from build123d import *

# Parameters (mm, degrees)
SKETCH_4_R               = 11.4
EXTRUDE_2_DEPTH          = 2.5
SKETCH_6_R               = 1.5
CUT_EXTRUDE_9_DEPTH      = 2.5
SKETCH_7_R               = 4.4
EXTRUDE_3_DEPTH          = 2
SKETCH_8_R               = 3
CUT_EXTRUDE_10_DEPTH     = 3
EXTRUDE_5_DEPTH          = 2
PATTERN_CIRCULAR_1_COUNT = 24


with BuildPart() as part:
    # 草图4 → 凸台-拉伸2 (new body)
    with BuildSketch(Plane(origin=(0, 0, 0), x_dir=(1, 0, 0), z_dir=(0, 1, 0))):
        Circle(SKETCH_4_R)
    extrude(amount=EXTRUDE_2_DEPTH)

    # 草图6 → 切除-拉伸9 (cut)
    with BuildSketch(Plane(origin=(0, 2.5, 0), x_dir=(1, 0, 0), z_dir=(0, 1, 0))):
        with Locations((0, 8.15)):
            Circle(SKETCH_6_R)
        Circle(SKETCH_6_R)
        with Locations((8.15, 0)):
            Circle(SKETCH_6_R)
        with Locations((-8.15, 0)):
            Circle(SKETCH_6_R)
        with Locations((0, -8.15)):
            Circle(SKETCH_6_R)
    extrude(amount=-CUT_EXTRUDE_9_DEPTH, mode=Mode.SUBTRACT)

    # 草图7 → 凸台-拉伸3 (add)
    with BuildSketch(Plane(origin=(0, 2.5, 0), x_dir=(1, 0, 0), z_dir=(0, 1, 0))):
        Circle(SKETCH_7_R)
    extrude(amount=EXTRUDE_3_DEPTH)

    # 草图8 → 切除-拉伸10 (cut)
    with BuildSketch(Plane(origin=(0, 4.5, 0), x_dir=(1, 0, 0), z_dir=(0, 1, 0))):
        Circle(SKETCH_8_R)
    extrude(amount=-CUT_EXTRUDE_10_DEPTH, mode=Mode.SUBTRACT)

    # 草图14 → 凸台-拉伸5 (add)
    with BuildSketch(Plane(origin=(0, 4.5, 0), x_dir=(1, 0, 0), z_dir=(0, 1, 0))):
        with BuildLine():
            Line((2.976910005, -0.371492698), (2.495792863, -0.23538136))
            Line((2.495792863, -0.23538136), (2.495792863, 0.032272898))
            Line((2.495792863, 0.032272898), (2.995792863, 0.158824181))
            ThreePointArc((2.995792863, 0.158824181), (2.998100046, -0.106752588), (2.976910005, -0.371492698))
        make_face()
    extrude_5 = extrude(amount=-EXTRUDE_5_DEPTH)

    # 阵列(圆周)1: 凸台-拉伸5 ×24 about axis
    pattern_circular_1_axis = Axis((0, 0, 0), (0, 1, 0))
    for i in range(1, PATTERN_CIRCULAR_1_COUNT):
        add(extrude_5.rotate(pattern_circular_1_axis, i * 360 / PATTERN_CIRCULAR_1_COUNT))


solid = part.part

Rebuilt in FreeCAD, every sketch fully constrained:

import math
import FreeCAD as App
import Part
import Sketcher

doc = App.newDocument("Part")
body = doc.addObject("PartDesign::Body", "Body")

sketch1 = doc.addObject("Sketcher::SketchObject", "Sketch")
body.addObject(sketch1)
sketch1.AttachmentSupport = (doc.XZ_Plane, [""])
sketch1.MapMode = "FlatFace"
sketch1.addGeometry(Part.Circle(App.Vector(0, 0, 0), App.Vector(0, 0, 1), 11), False)
sketch1.addConstraint(Sketcher.Constraint("Coincident", 0, 3, -1, 1))
sketch1.addConstraint(Sketcher.Constraint("Diameter", 0, 22.8))
pad1 = doc.addObject("PartDesign::Pad", "Pad")
body.addObject(pad1)
pad1.Profile = sketch1
pad1.Length = 2.5
pad1.Reversed = True

sketch2 = doc.addObject("Sketcher::SketchObject", "Sketch001")
body.addObject(sketch2)
sketch2.AttachmentSupport = (doc.XZ_Plane, [""])
sketch2.MapMode = "FlatFace"
sketch2.AttachmentOffset = App.Placement(App.Vector(0, 0, -2.5), App.Rotation())
sketch2.addGeometry(Part.Circle(App.Vector(0, -8.2, 0), App.Vector(0, 0, 1), 1.5), False)
sketch2.addGeometry(Part.Circle(App.Vector(0, 0, 0), App.Vector(0, 0, 1), 1.5), False)
sketch2.addGeometry(Part.Circle(App.Vector(8.2, 0, 0), App.Vector(0, 0, 1), 1.5), False)
sketch2.addGeometry(Part.Circle(App.Vector(-8.2, 0, 0), App.Vector(0, 0, 1), 1.5), False)
sketch2.addGeometry(Part.Circle(App.Vector(0, 8.2, 0), App.Vector(0, 0, 1), 1.5), False)
sketch2.addConstraint(Sketcher.Constraint("Coincident", 1, 3, -1, 1))
sketch2.addConstraint(Sketcher.Constraint("Equal", 0, 1))
sketch2.addConstraint(Sketcher.Constraint("Equal", 1, 2))
sketch2.addConstraint(Sketcher.Constraint("Equal", 2, 3))
sketch2.addConstraint(Sketcher.Constraint("Equal", 3, 4))
sketch2.addConstraint(Sketcher.Constraint("Symmetric", 2, 3, 3, 3, -1, 1))
sketch2.addConstraint(Sketcher.Constraint("Symmetric", 0, 3, 4, 3, -1, 1))
sketch2.addConstraint(Sketcher.Constraint("PointOnObject", 0, 3, -2))
sketch2.addConstraint(Sketcher.Constraint("PointOnObject", 2, 3, -1))
sketch2.addConstraint(Sketcher.Constraint("Diameter", 0, 3.0))
sketch2.addConstraint(Sketcher.Constraint("DistanceX", 3, 3, 2, 3, 16.3))
sketch2.addConstraint(Sketcher.Constraint("DistanceY", 0, 3, 4, 3, 16.3))
pocket1 = doc.addObject("PartDesign::Pocket", "Pocket")
body.addObject(pocket1)
pocket1.Profile = sketch2
pocket1.Length = 2.5
pocket1.Reversed = True

sketch3 = doc.addObject("Sketcher::SketchObject", "Sketch002")
body.addObject(sketch3)
sketch3.AttachmentSupport = (doc.XZ_Plane, [""])
sketch3.MapMode = "FlatFace"
sketch3.AttachmentOffset = App.Placement(App.Vector(0, 0, -2.5), App.Rotation())
sketch3.addGeometry(Part.Circle(App.Vector(0, 0, 0), App.Vector(0, 0, 1), 4.4), False)
sketch3.addConstraint(Sketcher.Constraint("Coincident", 0, 3, -1, 1))
sketch3.addConstraint(Sketcher.Constraint("Diameter", 0, 8.8))
pad2 = doc.addObject("PartDesign::Pad", "Pad001")
body.addObject(pad2)
pad2.Profile = sketch3
pad2.Length = 2
pad2.Reversed = True

sketch4 = doc.addObject("Sketcher::SketchObject", "Sketch003")
body.addObject(sketch4)
sketch4.AttachmentSupport = (doc.XZ_Plane, [""])
sketch4.MapMode = "FlatFace"
sketch4.AttachmentOffset = App.Placement(App.Vector(0, 0, -4.5), App.Rotation())
sketch4.addGeometry(Part.Circle(App.Vector(0, 0, 0), App.Vector(0, 0, 1), 3), False)
sketch4.addConstraint(Sketcher.Constraint("Coincident", 0, 3, -1, 1))
sketch4.addConstraint(Sketcher.Constraint("Diameter", 0, 6.0))
pocket2 = doc.addObject("PartDesign::Pocket", "Pocket001")
body.addObject(pocket2)
pocket2.Profile = sketch4
pocket2.Length = 3
pocket2.Reversed = True

sketch5 = doc.addObject("Sketcher::SketchObject", "Sketch004")
body.addObject(sketch5)
sketch5.AttachmentSupport = (doc.XZ_Plane, [""])
sketch5.MapMode = "FlatFace"
sketch5.AttachmentOffset = App.Placement(App.Vector(0, 0, -4.5), App.Rotation())
sketch5.addGeometry(Part.LineSegment(App.Vector(2.5, 0.24, 0), App.Vector(2.98, 0.37, 0)), False)
sketch5.addGeometry(Part.ArcOfCircle(Part.Circle(App.Vector(0, 0, 0), App.Vector(0, 0, 1), 3), math.radians(-3.03), math.radians(7.11)), False)
sketch5.addGeometry(Part.LineSegment(App.Vector(3, -0.16, 0), App.Vector(2.5, -0.03, 0)), False)
sketch5.addGeometry(Part.LineSegment(App.Vector(2.5, -0.03, 0), App.Vector(2.5, 0.24, 0)), False)
sketch5.addConstraint(Sketcher.Constraint("Coincident", 0, 2, 1, 2))
sketch5.addConstraint(Sketcher.Constraint("Coincident", 1, 1, 2, 1))
sketch5.addConstraint(Sketcher.Constraint("Coincident", 2, 2, 3, 1))
sketch5.addConstraint(Sketcher.Constraint("Coincident", 3, 2, 0, 1))
sketch5.addConstraint(Sketcher.Constraint("Vertical", 3))
sketch5.addConstraint(Sketcher.Constraint("Coincident", 1, 3, -1, 1))
sketch5.addConstraint(Sketcher.Constraint("Radius", 1, 3.0))
sketch5.addConstraint(Sketcher.Constraint("Distance", 0, 0.5))
sketch5.addConstraint(Sketcher.Constraint("DistanceX", 2, 2, 1, 1, 0.5))
sketch5.addConstraint(Sketcher.Constraint("DistanceY", 3, 1, 3, 2, 0.267654))
sketch5.addConstraint(Sketcher.Constraint("DistanceX", -1, 1, 0, 2, 2.97691))
sketch5.addConstraint(Sketcher.Constraint("DistanceY", -1, 1, 3, 2, 0.235381))
pad3 = doc.addObject("PartDesign::Pad", "Pad002")
body.addObject(pad3)
pad3.Profile = sketch5
pad3.Length = 2
doc.recompute()

polarpattern = doc.addObject("PartDesign::PolarPattern", "PolarPattern")
body.addObject(polarpattern)
polarpattern.Originals = [pad3]
polarpattern.Axis = (doc.Y_Axis, [""])
polarpattern.Angle = 360
polarpattern.Occurrences = 24
body.Tip = polarpattern

doc.recompute()
